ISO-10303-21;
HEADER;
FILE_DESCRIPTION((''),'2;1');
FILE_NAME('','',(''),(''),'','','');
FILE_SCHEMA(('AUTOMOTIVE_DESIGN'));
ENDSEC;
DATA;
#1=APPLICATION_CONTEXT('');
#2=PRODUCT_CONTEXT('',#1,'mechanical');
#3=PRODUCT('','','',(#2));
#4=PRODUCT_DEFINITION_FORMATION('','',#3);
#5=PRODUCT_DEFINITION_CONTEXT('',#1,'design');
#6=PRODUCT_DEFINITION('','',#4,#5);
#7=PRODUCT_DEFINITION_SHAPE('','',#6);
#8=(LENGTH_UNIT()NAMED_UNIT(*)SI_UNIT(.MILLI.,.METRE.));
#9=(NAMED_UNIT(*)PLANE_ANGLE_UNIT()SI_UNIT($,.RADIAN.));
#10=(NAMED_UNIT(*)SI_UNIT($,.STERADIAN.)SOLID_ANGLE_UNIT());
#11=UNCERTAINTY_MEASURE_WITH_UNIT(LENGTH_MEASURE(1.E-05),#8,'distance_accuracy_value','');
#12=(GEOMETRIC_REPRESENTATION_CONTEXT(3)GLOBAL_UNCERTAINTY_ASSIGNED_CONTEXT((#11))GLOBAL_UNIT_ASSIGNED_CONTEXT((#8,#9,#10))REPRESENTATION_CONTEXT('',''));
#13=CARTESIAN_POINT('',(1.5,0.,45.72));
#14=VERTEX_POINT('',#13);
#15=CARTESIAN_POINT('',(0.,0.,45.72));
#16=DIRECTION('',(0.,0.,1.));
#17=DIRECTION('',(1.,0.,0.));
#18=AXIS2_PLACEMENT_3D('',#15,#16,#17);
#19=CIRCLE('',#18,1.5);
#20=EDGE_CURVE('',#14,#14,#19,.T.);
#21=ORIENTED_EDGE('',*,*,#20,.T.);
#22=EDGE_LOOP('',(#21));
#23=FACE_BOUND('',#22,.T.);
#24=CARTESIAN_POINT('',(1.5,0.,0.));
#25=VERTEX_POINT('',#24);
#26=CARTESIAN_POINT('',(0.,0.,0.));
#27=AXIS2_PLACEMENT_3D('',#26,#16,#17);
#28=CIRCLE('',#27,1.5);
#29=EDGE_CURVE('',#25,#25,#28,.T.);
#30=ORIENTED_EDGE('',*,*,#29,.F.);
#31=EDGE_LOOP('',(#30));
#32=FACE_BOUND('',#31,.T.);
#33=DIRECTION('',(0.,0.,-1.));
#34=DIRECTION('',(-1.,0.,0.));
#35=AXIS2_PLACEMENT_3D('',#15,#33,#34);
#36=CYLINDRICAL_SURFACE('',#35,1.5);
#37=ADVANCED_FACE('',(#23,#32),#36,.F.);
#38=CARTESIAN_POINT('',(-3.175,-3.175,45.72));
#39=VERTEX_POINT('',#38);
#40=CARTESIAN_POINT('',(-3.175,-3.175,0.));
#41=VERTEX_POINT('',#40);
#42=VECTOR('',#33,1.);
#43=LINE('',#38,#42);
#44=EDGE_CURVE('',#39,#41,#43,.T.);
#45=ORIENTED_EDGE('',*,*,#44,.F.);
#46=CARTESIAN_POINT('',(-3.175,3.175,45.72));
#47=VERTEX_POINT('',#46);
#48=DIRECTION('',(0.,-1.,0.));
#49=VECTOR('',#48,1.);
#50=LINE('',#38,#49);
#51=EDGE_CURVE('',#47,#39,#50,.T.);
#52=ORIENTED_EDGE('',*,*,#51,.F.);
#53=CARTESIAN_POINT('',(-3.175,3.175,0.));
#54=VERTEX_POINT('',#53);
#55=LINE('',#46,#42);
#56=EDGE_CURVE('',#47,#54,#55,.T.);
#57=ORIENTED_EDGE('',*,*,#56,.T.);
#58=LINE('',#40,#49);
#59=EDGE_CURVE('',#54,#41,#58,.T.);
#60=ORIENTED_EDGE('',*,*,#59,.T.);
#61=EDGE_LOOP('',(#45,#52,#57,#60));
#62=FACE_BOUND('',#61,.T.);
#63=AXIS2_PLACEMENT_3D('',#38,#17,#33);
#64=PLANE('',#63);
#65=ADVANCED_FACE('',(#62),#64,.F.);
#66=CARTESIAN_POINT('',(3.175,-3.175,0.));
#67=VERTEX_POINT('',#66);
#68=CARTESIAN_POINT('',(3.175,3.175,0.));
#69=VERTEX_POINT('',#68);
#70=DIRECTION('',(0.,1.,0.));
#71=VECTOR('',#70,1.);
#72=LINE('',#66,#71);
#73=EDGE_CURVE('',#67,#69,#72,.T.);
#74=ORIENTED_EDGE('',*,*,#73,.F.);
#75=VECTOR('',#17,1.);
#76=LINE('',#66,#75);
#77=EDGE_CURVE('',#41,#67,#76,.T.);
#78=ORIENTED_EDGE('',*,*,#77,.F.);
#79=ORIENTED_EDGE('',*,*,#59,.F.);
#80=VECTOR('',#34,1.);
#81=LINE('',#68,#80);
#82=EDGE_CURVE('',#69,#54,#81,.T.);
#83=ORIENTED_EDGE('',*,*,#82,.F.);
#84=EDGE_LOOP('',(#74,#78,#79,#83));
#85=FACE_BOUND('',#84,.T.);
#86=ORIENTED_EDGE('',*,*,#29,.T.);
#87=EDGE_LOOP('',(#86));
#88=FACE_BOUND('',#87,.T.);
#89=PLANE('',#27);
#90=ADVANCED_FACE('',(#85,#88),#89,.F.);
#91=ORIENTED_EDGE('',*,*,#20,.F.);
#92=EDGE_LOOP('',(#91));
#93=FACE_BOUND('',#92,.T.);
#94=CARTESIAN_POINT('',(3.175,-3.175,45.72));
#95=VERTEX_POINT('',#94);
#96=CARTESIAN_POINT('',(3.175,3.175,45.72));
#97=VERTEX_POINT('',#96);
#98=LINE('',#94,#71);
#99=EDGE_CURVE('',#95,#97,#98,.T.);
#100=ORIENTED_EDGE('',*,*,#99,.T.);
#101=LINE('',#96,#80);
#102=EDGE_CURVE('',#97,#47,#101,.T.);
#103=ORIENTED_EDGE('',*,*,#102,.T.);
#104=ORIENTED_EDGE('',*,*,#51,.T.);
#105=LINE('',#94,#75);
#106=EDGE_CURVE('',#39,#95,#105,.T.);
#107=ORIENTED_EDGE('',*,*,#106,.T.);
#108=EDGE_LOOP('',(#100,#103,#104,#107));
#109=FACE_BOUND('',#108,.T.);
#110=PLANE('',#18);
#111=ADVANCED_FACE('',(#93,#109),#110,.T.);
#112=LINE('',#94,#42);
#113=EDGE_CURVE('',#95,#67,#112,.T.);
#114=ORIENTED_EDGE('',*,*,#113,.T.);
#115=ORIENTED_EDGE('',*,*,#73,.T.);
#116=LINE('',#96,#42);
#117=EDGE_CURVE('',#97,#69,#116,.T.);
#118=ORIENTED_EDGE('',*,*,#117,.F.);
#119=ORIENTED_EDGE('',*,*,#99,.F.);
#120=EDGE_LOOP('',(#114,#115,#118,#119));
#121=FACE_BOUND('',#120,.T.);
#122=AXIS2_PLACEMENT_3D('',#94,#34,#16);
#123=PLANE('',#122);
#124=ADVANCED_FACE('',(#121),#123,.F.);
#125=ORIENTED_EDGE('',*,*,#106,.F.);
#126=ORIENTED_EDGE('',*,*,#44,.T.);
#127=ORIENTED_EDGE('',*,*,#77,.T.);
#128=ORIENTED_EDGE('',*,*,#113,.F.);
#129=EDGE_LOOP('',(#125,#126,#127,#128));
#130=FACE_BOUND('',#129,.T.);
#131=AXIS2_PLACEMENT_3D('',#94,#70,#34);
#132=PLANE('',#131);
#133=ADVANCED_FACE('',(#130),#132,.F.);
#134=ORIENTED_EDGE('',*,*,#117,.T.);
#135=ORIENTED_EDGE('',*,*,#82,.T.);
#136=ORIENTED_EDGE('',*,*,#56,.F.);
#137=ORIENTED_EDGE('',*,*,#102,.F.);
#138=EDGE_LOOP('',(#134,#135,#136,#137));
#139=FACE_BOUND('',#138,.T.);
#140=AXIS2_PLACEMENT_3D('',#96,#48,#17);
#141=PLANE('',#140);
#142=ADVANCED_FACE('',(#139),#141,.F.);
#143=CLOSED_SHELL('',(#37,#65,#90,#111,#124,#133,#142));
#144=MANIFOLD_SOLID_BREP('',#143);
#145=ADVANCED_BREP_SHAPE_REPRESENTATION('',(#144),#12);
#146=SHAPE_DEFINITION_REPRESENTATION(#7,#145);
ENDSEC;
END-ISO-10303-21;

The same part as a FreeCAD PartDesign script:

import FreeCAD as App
import Part
import Sketcher
Q = App.Units.Quantity

doc = App.newDocument("Part")
body = doc.addObject("PartDesign::Body", "Body")

# Sketch on XY plane
sketch1 = body.newObject("Sketcher::SketchObject", "Sketch")
sketch1.AttachmentSupport = (doc.getObject("XY_Plane"), [""])
sketch1.MapMode = "FlatFace"
sketch1.addGeometry([
    Part.LineSegment(App.Vector(-3.2, 3.2, 0), App.Vector(-3.2, -3.2, 0)),  # 0
    Part.LineSegment(App.Vector(-3.2, -3.2, 0), App.Vector(3.2, -3.2, 0)),  # 1
    Part.LineSegment(App.Vector(3.2, -3.2, 0), App.Vector(3.2, 3.2, 0)),  # 2
    Part.LineSegment(App.Vector(3.2, 3.2, 0), App.Vector(-3.2, 3.2, 0)),  # 3
    Part.Circle(App.Vector(0, 0, 0), App.Vector(0, 0, 1), 1.5),  # 4
], False)
sketch1.addConstraint([
    Sketcher.Constraint("Coincident", 0, 2, 1, 1),
    Sketcher.Constraint("Coincident", 1, 2, 2, 1),
    Sketcher.Constraint("Coincident", 2, 2, 3, 1),
    Sketcher.Constraint("Coincident", 3, 2, 0, 1),
    Sketcher.Constraint("Vertical", 0),
    Sketcher.Constraint("Horizontal", 1),
    Sketcher.Constraint("Vertical", 2),
    Sketcher.Constraint("Horizontal", 3),
    Sketcher.Constraint("Coincident", 4, 3, -1, 1),
    Sketcher.Constraint("Symmetric", 0, 2, 2, 2, -1, 1),
    Sketcher.Constraint("Equal", 3, 0),
    Sketcher.Constraint("DistanceX", 1, 1, 1, 2, Q("0.25 in")),
    Sketcher.Constraint("Diameter", 4, Q("3 mm")),
])
pad1 = body.newObject("PartDesign::Pad", "Pad")
pad1.Profile = sketch1
pad1.Length = Q("1.8 in")

doc.recompute()
